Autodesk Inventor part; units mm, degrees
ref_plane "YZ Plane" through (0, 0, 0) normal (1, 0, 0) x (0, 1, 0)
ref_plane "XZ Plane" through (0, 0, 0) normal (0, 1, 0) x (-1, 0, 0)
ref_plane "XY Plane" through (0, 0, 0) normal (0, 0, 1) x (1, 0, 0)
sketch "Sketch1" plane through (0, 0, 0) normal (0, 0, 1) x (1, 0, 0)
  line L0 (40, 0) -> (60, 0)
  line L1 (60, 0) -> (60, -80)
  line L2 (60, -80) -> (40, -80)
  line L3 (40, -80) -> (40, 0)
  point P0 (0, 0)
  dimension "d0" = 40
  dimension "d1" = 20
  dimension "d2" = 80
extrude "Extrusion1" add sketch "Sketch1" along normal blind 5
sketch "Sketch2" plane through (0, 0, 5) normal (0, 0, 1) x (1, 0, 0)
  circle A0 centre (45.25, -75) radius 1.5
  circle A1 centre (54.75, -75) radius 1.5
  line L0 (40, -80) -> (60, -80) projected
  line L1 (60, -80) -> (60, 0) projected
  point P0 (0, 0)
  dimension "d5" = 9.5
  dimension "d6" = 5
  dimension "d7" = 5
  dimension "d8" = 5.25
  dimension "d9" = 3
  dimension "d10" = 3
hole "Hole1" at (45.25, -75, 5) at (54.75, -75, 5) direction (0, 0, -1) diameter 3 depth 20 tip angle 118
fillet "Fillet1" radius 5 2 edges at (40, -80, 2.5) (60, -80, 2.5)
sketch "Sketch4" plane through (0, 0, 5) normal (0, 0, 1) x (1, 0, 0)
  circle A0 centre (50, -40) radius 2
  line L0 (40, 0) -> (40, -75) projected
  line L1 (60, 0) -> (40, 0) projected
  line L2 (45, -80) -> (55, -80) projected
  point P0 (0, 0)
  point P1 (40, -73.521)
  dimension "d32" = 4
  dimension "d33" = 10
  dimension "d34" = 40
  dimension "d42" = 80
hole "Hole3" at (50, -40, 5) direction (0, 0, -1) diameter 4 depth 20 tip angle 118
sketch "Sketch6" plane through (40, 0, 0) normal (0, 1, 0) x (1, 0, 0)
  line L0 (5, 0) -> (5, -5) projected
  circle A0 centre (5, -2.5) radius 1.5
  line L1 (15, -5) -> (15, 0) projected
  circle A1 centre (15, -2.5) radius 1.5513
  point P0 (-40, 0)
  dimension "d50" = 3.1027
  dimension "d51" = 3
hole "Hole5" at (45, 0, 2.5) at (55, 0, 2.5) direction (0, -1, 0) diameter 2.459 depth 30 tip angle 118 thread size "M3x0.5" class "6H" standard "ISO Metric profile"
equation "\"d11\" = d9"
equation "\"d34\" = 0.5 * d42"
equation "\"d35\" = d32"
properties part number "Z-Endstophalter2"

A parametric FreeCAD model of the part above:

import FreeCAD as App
import Part
import Sketcher
from FreeCAD import Vector
Q = App.Units.Quantity


def edges_at(feature, points):
    """Names of the edges that pass closest to the given points."""
    edges = feature.Shape.Edges
    near = lambda p: min(range(len(edges)), key=lambda i: edges[i].distToShape(Part.Vertex(*p))[0])
    return sorted({f"Edge{near(p) + 1}" for p in points})


def add_polygon(sketch, points):
    """Adds a closed chain of lines whose ends are joined by coincident constraints."""
    first, n = sketch.GeometryCount, len(points)
    for a, b in zip(points, points[1:] + points[:1]):
        sketch.addGeometry(Part.LineSegment(App.Vector(*a, 0), App.Vector(*b, 0)), False)
    for i in range(n):
        sketch.addConstraint(Sketcher.Constraint("Coincident", first + i, 2, first + (i + 1) % n, 1))

doc = App.newDocument("Part")
body = doc.addObject("PartDesign::Body", "Body")

# Sketch on XY plane
sketch1 = body.newObject("Sketcher::SketchObject", "Sketch")
sketch1.AttachmentSupport = (doc.getObject("XY_Plane"), [""])
sketch1.MapMode = "FlatFace"
add_polygon(sketch1, [(60, 0), (40, 0), (40, -80), (60, -80)])  # lines 0-3
sketch1.addConstraint(Sketcher.Constraint("Horizontal", 0))
sketch1.addConstraint(Sketcher.Constraint("Vertical", 1))
sketch1.addConstraint(Sketcher.Constraint("Horizontal", 2))
sketch1.addConstraint(Sketcher.Constraint("Vertical", 3))
sketch1.addConstraint(Sketcher.Constraint("PointOnObject", 0, 2, -1))
sketch1.addConstraint(Sketcher.Constraint("DistanceX", 0, 2, 0, 1, Q("20 mm")))
sketch1.addConstraint(Sketcher.Constraint("DistanceY", 1, 2, 1, 1, Q("80 mm")))
sketch1.addConstraint(Sketcher.Constraint("DistanceX", -1, 1, 0, 2, Q("40 mm")))
pad1 = body.newObject("PartDesign::Pad", "Pad")
pad1.Profile = sketch1
pad1.Length = 5

# Sketch on XY plane
sketch2 = body.newObject("Sketcher::SketchObject", "Sketch001")
sketch2.AttachmentSupport = (doc.getObject("XY_Plane"), [""])
sketch2.MapMode = "FlatFace"
sketch2.AttachmentOffset = App.Placement(Vector(0, 0, 5), App.Rotation())
sketch2.addGeometry(Part.Circle(Vector(45.2, -75, 0), Vector(0, 0, 1), 1.5), False)
sketch2.addGeometry(Part.Circle(Vector(54.8, -75, 0), Vector(0, 0, 1), 1.5), False)
sketch2.addConstraint(Sketcher.Constraint("Equal", 0, 1))
sketch2.addConstraint(Sketcher.Constraint("Horizontal", 0, 3, 1, 3))
sketch2.addConstraint(Sketcher.Constraint("Diameter", 0, Q("3 mm")))
sketch2.addConstraint(Sketcher.Constraint("DistanceY", 0, 3, -1, 1, Q("75 mm")))
sketch2.addConstraint(Sketcher.Constraint("DistanceX", 0, 3, 1, 3, Q("9.5 mm")))
sketch2.addConstraint(Sketcher.Constraint("DistanceX", -1, 1, 0, 3, Q("45.25 mm")))
doc.recompute()
hole = body.newObject("PartDesign::Hole", "Hole")
hole.Profile = sketch2
hole.ThreadType = "None"
hole.Diameter = 3
hole.DepthType = "Dimension"
hole.Depth = 20
hole.DrillPoint = "Angled"
hole.DrillPointAngle = 118
doc.recompute()

fillet = body.newObject("PartDesign::Fillet", "Fillet")
fillet.Base = (hole, edges_at(hole, [(40, -80, 2.5), (60, -80, 2.5)]))
fillet.Radius = 5

# Sketch on XY plane
sketch3 = body.newObject("Sketcher::SketchObject", "Sketch002")
sketch3.AttachmentSupport = (doc.getObject("XY_Plane"), [""])
sketch3.MapMode = "FlatFace"
sketch3.AttachmentOffset = App.Placement(Vector(0, 0, 5), App.Rotation())
sketch3.addGeometry(Part.Circle(Vector(50, -40, 0), Vector(0, 0, 1), 2), False)
sketch3.addConstraint(Sketcher.Constraint("Diameter", 0, Q("4 mm")))
sketch3.addConstraint(Sketcher.Constraint("DistanceX", -1, 1, 0, 3, Q("50 mm")))
sketch3.addConstraint(Sketcher.Constraint("DistanceY", 0, 3, -1, 1, Q("40 mm")))
doc.recompute()
hole2 = body.newObject("PartDesign::Hole", "Hole001")
hole2.Profile = sketch3
hole2.ThreadType = "None"
hole2.Diameter = 4
hole2.DepthType = "Dimension"
hole2.Depth = 20
hole2.DrillPoint = "Angled"
hole2.DrillPointAngle = 118

# Sketch on XZ plane
sketch4 = body.newObject("Sketcher::SketchObject", "Sketch003")
sketch4.AttachmentSupport = (doc.getObject("XZ_Plane"), [""])
sketch4.MapMode = "FlatFace"
sketch4.addGeometry(Part.Circle(Vector(45, 2.5, 0), Vector(0, 0, 1), 1.2), False)
sketch4.addGeometry(Part.Circle(Vector(55, 2.5, 0), Vector(0, 0, 1), 1.2), False)
sketch4.addConstraint(Sketcher.Constraint("Equal", 0, 1))
sketch4.addConstraint(Sketcher.Constraint("Horizontal", 0, 3, 1, 3))
sketch4.addConstraint(Sketcher.Constraint("Diameter", 0, Q("2.459 mm")))
sketch4.addConstraint(Sketcher.Constraint("DistanceX", -1, 1, 0, 3, Q("45 mm")))
sketch4.addConstraint(Sketcher.Constraint("DistanceX", -1, 1, 1, 3, Q("55 mm")))
sketch4.addConstraint(Sketcher.Constraint("DistanceY", -1, 1, 0, 3, Q("2.5 mm")))
doc.recompute()
hole3 = body.newObject("PartDesign::Hole", "Hole002")
hole3.Profile = sketch4
hole3.ThreadType = "None"
hole3.Diameter = 2.459
hole3.DepthType = "Dimension"
hole3.Depth = 30
hole3.DrillPoint = "Angled"
hole3.DrillPointAngle = 118
hole3.Reversed = True

doc.recompute()
